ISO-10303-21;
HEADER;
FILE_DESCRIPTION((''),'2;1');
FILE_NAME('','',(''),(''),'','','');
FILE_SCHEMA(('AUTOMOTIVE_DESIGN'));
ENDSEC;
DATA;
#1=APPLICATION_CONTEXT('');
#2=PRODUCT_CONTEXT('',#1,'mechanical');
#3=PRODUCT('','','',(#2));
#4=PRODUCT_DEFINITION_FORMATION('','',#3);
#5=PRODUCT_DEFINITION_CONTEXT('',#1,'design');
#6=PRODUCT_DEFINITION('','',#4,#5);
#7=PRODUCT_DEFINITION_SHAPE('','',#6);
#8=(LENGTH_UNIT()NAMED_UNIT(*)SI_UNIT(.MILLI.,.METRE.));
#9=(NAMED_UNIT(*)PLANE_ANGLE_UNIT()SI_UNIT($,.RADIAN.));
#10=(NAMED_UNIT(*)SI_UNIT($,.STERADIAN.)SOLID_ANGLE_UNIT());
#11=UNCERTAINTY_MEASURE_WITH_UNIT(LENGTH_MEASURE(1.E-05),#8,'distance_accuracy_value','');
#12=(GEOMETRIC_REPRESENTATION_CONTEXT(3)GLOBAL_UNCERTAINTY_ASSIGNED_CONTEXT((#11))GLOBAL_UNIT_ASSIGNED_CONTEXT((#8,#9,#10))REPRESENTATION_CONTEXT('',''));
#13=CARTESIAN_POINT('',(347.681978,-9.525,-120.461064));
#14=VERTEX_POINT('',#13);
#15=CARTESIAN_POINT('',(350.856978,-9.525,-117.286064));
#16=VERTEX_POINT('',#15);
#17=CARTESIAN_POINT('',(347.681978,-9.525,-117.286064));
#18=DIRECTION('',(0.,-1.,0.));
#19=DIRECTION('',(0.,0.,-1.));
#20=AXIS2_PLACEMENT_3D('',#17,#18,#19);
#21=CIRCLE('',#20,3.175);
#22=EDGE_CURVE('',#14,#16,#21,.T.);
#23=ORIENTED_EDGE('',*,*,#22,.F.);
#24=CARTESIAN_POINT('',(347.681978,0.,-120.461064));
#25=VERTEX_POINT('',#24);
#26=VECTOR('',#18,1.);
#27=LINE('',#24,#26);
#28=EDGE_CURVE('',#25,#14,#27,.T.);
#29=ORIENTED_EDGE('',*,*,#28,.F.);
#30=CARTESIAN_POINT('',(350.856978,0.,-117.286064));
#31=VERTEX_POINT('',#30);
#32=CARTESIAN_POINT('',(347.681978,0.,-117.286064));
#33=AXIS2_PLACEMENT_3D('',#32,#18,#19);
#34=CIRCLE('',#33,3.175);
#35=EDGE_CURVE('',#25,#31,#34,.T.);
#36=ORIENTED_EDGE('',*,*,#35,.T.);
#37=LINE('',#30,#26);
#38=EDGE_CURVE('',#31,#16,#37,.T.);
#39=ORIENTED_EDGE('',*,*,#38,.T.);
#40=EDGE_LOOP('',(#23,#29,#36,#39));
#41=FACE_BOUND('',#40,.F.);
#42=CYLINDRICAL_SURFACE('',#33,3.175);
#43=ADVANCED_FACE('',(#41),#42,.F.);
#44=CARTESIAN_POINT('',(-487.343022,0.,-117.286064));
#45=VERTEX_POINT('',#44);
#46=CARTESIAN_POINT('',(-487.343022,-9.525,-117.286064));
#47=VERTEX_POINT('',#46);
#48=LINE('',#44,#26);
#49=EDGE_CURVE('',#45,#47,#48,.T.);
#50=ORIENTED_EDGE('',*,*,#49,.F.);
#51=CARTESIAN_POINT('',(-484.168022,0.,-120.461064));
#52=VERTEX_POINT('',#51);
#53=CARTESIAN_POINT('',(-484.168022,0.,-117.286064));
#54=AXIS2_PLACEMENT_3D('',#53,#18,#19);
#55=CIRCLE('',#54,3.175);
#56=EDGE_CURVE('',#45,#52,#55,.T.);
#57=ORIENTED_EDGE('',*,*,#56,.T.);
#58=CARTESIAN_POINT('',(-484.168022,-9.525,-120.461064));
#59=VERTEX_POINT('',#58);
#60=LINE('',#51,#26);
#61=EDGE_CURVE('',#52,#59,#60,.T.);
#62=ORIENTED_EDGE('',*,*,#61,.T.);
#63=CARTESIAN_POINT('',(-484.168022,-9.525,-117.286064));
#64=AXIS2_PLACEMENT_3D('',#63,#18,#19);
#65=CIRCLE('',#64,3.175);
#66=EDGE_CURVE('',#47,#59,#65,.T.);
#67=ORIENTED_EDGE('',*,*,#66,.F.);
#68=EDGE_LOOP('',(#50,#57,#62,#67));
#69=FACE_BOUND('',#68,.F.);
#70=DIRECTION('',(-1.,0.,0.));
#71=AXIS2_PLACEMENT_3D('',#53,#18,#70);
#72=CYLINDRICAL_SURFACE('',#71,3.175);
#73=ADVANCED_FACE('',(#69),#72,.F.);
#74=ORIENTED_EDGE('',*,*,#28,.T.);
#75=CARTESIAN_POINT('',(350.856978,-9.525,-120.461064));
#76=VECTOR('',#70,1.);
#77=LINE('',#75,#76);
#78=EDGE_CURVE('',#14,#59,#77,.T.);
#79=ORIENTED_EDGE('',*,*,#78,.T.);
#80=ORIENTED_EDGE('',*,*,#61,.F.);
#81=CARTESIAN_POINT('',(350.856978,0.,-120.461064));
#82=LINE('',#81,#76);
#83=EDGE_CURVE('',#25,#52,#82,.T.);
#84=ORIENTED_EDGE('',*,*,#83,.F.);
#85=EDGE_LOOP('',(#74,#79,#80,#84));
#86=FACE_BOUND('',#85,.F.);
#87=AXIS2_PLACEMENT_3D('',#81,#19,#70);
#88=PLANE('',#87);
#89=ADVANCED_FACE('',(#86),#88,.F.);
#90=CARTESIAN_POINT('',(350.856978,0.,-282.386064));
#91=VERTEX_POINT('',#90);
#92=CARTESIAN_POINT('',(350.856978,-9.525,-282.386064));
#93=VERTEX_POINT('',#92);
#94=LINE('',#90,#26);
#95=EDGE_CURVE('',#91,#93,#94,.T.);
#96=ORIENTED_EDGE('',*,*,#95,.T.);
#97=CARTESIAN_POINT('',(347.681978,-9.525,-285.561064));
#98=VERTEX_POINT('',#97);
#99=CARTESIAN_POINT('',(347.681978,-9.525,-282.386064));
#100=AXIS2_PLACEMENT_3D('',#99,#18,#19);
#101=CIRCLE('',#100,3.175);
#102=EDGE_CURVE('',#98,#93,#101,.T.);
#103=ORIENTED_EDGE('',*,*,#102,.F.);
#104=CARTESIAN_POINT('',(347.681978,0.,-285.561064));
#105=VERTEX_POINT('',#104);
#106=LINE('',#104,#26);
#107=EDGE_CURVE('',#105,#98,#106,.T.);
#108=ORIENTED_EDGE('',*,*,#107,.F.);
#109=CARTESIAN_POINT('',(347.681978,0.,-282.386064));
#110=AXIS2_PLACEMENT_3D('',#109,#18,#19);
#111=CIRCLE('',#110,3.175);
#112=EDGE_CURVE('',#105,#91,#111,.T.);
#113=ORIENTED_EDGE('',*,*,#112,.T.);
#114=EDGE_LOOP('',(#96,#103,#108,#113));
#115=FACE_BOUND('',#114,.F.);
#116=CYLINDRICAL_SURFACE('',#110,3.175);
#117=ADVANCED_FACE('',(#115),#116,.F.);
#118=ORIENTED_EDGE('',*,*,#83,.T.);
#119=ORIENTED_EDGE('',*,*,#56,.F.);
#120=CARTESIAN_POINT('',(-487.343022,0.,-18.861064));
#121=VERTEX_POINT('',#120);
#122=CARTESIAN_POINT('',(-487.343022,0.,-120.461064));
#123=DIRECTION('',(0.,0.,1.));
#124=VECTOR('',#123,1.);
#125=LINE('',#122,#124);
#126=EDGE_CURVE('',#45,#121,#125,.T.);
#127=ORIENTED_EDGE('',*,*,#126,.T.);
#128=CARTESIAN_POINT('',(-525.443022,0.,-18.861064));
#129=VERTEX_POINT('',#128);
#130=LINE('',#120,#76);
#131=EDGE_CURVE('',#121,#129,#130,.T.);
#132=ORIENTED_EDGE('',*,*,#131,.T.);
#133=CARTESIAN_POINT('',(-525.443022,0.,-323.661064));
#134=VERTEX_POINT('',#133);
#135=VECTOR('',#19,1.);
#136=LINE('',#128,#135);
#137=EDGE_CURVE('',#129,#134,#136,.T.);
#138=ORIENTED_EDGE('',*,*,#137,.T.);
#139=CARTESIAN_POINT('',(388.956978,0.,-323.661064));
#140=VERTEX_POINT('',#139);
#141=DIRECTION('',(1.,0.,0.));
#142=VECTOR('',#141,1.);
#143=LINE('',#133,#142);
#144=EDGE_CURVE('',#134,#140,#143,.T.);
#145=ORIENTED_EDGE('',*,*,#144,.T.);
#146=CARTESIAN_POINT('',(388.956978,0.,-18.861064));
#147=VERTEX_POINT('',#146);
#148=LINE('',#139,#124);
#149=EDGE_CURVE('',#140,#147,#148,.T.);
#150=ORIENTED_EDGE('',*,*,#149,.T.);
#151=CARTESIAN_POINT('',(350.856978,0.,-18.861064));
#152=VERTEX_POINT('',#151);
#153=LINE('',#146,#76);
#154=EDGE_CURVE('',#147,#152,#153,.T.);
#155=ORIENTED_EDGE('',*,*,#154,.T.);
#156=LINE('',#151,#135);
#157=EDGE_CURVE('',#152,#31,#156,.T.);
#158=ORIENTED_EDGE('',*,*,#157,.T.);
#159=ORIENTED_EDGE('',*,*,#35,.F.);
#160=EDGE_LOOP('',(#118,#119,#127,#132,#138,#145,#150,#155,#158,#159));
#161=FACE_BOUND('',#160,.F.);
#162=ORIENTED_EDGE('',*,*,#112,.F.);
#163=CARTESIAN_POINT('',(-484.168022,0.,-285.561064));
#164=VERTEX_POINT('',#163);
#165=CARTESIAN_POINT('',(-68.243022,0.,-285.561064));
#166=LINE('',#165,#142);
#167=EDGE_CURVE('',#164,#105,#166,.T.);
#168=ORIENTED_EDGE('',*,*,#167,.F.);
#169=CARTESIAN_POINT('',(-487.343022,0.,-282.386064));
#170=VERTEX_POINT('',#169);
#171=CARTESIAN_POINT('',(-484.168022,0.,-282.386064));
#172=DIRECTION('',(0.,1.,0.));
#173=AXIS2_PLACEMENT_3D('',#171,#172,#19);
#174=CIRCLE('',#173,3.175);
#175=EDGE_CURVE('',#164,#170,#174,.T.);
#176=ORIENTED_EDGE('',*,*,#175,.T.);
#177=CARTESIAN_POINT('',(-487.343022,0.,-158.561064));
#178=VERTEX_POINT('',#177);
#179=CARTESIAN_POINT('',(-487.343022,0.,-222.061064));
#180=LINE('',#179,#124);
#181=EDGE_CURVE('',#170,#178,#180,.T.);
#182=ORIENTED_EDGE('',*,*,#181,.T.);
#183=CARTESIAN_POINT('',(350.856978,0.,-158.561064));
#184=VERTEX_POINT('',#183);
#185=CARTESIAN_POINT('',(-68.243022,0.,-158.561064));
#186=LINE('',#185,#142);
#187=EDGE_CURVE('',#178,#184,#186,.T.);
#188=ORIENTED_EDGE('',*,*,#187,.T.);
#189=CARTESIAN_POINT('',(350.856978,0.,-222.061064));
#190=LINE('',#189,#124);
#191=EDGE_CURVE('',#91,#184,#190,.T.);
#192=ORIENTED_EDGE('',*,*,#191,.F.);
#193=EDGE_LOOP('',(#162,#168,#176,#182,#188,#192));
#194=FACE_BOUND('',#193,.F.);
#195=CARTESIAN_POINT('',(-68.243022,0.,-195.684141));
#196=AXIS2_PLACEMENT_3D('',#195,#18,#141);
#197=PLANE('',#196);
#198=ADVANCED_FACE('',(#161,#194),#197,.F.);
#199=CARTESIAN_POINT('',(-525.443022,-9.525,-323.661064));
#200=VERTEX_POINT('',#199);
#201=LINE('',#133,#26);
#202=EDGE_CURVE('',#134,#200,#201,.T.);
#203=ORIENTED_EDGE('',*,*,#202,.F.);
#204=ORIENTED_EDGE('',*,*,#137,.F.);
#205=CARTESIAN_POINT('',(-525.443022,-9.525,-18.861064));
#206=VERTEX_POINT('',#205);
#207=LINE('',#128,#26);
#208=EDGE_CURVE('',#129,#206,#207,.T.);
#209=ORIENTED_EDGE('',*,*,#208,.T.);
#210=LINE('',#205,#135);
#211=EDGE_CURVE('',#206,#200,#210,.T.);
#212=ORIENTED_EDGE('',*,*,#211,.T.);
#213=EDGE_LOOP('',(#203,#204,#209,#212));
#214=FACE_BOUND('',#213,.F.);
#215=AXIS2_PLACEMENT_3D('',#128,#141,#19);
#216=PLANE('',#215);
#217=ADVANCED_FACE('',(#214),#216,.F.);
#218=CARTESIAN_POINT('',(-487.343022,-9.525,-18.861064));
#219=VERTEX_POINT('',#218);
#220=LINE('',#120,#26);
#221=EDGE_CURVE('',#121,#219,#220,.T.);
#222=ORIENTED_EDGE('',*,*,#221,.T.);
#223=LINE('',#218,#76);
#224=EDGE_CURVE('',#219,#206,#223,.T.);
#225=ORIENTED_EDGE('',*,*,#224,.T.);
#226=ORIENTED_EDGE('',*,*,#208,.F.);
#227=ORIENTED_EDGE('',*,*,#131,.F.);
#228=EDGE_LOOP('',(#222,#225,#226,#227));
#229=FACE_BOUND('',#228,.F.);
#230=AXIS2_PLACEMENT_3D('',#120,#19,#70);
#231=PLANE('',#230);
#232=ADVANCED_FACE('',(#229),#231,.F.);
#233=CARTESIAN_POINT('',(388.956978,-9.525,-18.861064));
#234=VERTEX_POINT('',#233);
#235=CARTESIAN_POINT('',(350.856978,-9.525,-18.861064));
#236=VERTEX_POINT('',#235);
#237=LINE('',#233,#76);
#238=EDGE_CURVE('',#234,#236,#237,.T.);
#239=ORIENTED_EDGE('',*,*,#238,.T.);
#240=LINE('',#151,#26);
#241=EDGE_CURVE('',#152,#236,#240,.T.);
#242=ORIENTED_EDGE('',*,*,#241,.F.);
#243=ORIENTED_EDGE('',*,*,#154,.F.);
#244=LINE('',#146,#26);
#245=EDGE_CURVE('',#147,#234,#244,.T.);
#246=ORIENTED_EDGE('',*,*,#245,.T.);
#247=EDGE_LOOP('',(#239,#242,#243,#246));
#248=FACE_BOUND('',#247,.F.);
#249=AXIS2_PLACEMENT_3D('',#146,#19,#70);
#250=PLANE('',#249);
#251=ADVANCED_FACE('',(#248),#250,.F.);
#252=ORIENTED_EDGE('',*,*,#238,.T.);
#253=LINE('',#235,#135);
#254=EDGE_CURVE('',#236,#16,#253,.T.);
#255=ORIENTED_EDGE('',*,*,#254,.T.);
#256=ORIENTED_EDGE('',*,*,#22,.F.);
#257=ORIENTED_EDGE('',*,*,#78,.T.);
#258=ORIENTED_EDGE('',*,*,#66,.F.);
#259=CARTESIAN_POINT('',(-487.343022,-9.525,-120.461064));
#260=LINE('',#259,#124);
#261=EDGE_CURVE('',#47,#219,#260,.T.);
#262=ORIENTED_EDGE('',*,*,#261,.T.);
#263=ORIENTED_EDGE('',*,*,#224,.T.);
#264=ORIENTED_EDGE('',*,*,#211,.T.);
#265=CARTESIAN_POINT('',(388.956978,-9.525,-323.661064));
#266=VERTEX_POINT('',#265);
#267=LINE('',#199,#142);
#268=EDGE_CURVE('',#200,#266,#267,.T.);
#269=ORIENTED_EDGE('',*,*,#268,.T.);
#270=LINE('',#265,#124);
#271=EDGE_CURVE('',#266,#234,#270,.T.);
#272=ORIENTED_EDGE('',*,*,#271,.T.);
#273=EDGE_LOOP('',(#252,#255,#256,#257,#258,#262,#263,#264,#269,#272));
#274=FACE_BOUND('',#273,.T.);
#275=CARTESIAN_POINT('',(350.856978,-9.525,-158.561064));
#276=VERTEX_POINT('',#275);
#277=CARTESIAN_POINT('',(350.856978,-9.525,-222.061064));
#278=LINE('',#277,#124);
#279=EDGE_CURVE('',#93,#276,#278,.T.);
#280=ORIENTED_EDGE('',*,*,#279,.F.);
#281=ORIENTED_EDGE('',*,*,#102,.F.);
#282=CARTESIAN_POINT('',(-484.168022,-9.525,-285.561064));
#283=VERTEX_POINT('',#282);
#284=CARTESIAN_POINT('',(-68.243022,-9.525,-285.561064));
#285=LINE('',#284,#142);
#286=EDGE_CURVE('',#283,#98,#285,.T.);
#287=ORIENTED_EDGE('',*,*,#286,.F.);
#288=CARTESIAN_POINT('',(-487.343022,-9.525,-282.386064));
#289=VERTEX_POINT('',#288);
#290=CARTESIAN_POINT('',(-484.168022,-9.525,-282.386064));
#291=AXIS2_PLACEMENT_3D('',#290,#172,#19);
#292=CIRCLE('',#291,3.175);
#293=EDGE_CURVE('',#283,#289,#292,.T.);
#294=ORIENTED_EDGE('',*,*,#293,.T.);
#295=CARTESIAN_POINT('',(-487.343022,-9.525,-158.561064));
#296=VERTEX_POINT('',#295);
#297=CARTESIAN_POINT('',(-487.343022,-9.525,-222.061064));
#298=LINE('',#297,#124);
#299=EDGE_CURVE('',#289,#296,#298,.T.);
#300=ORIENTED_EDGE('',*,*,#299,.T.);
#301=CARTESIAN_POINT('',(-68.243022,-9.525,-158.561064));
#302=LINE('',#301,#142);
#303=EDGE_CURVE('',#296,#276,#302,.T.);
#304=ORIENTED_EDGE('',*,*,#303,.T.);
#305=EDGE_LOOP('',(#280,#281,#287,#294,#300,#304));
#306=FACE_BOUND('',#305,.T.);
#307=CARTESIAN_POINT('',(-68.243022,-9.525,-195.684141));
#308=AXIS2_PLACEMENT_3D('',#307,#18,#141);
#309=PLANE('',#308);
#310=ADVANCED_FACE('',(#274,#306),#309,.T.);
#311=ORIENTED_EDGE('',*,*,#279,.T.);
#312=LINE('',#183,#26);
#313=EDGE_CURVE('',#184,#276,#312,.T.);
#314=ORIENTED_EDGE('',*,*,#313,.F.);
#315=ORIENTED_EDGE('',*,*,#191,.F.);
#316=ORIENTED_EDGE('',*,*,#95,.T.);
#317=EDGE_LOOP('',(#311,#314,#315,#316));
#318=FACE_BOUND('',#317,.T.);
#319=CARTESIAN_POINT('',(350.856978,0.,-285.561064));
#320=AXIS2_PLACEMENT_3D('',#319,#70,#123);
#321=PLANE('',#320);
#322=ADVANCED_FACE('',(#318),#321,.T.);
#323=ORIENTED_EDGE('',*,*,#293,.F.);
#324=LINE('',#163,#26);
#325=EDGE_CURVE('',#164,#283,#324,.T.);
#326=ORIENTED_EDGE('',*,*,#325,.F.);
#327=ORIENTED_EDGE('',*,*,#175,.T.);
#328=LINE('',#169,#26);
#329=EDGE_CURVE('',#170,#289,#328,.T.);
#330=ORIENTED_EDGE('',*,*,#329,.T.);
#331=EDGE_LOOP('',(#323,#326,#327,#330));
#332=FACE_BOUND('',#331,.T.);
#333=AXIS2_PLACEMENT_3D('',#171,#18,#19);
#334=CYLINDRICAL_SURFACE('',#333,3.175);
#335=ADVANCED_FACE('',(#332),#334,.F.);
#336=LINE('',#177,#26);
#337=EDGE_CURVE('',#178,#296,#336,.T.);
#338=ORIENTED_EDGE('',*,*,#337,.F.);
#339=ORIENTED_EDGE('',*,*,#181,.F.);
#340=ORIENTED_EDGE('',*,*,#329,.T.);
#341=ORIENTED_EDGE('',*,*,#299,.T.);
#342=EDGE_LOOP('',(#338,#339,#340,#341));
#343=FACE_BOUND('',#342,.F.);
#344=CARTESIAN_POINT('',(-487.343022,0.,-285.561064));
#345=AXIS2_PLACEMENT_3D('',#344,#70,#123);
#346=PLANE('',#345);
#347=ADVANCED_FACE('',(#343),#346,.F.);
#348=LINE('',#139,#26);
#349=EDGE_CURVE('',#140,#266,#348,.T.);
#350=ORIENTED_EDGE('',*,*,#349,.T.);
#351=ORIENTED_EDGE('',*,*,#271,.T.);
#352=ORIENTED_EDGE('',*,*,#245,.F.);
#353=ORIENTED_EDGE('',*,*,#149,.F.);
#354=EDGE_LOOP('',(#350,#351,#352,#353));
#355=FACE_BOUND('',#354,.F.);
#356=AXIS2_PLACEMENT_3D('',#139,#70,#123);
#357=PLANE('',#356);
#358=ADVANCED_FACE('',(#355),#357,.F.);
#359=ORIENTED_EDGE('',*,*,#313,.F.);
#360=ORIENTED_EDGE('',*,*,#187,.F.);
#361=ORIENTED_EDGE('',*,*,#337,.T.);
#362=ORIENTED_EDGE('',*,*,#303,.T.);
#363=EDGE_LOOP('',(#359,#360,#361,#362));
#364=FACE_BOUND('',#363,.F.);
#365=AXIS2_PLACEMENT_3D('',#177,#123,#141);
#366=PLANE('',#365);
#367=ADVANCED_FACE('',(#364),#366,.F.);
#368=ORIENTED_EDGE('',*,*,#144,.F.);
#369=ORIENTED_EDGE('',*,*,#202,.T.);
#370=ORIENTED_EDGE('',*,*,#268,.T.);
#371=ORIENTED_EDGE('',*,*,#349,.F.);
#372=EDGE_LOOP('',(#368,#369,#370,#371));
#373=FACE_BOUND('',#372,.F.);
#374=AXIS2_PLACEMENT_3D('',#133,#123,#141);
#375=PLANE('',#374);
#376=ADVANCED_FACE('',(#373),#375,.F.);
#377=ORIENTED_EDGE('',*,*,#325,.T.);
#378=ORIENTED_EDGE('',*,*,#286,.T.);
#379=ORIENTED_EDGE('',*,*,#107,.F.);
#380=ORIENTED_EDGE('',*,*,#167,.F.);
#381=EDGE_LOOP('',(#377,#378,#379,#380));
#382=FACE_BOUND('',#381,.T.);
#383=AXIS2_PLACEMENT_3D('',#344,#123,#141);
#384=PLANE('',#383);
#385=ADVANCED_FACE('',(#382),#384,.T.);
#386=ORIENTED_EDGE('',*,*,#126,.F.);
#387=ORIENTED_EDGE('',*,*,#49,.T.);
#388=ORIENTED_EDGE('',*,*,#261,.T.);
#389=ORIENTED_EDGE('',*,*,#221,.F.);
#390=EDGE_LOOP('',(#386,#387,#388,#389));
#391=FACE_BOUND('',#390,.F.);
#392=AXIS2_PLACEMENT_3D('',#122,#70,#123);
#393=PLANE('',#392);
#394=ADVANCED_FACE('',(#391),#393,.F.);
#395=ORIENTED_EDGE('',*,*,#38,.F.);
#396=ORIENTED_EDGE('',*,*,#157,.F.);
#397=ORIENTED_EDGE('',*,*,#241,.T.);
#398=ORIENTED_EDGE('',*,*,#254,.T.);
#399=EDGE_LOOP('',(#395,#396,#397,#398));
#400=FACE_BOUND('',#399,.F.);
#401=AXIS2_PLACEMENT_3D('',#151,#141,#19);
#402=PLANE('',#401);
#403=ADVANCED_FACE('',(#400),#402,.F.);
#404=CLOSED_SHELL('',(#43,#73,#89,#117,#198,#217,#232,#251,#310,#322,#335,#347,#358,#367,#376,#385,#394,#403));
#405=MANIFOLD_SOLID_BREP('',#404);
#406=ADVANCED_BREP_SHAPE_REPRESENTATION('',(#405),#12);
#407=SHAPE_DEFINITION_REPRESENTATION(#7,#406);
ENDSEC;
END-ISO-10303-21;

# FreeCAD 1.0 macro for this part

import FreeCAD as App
import Part
import Sketcher

V = App.Vector
Q = App.Units.Quantity


def edges_at(feature, points):
    """Names of the edges that pass closest to the given points."""
    edges = feature.Shape.Edges
    near = lambda p: min(range(len(edges)), key=lambda i: edges[i].distToShape(Part.Vertex(*p))[0])
    return sorted({f"Edge{near(p) + 1}" for p in points})


def add_polygon(sketch, points):
    """Adds a closed chain of lines whose ends are joined by coincident constraints."""
    first, n = sketch.GeometryCount, len(points)
    for a, b in zip(points, points[1:] + points[:1]):
        sketch.addGeometry(Part.LineSegment(App.Vector(*a, 0), App.Vector(*b, 0)), False)
    for i in range(n):
        sketch.addConstraint(Sketcher.Constraint("Coincident", first + i, 2, first + (i + 1) % n, 1))

doc = App.newDocument("Part")
body = doc.addObject("PartDesign::Body", "Body")

sketch1 = doc.addObject("Sketcher::SketchObject", "Sketch")
body.addObject(sketch1)
sketch1.AttachmentSupport = (doc.XZ_Plane, [""])
sketch1.MapMode = "FlatFace"
add_polygon(sketch1, [(-487.343022, -18.861064), (-525.443022, -18.861064), (-525.443022, -323.661064), (388.956978, -323.661064), (388.956978, -18.861064), (350.856978, -18.861064), (350.856978, -120.461064), (-487.343022, -120.461064)])
add_polygon(sketch1, [(350.856978, -285.561064), (-487.343022, -285.561064), (-487.343022, -158.561064), (350.856978, -158.561064)])
sketch1.addConstraint([
    Sketcher.Constraint("Horizontal", 0),
    Sketcher.Constraint("Vertical", 1),
    Sketcher.Constraint("Horizontal", 2),
    Sketcher.Constraint("Vertical", 3),
    Sketcher.Constraint("Horizontal", 4),
    Sketcher.Constraint("Vertical", 5),
    Sketcher.Constraint("Horizontal", 6),
    Sketcher.Constraint("Vertical", 7),
    Sketcher.Constraint("Horizontal", 8),
    Sketcher.Constraint("Vertical", 9),
    Sketcher.Constraint("Horizontal", 10),
    Sketcher.Constraint("Vertical", 11),
    Sketcher.Constraint("Horizontal", 0, 2, 3, 2),
    Sketcher.Constraint("Vertical", 7, 2, 8, 2),
    Sketcher.Constraint("Vertical", 5, 2, 10, 2),
    Sketcher.Constraint("Equal", 0, 4),
    Sketcher.Constraint("DistanceX", 2, 1, 2, 2, Q("36 in")),
    Sketcher.Constraint("DistanceX", 6, 2, 6, 1, Q("33 in")),
    Sketcher.Constraint("DistanceY", 1, 2, 1, 1, Q("12 in")),
    Sketcher.Constraint("DistanceY", 5, 2, 5, 1, Q("4 in")),
    Sketcher.Constraint("DistanceY", 9, 1, 9, 2, Q("5 in")),
    Sketcher.Constraint("DistanceY", 1, 2, 8, 2, Q("1.5 in")),
    Sketcher.Constraint("DistanceX", 0, 2, -1, 1, 525.443022),
    Sketcher.Constraint("DistanceY", 0, 2, -1, 1, 18.861064),
])
pad1 = doc.addObject("PartDesign::Pad", "Pad")
body.addObject(pad1)
pad1.Profile = sketch1
pad1.Length = Q("0.375 in")
doc.recompute()

fillet = doc.addObject("PartDesign::Fillet", "Fillet")
body.addObject(fillet)
fillet.Base = (pad1, edges_at(pad1, [
    (-487.343, -4.763, -285.561),
    (350.857, -4.763, -285.561),
    (350.857, -4.763, -120.461),
    (-487.343, -4.763, -120.461),
]))
fillet.Radius = Q("0.125 in")

doc.recompute()
